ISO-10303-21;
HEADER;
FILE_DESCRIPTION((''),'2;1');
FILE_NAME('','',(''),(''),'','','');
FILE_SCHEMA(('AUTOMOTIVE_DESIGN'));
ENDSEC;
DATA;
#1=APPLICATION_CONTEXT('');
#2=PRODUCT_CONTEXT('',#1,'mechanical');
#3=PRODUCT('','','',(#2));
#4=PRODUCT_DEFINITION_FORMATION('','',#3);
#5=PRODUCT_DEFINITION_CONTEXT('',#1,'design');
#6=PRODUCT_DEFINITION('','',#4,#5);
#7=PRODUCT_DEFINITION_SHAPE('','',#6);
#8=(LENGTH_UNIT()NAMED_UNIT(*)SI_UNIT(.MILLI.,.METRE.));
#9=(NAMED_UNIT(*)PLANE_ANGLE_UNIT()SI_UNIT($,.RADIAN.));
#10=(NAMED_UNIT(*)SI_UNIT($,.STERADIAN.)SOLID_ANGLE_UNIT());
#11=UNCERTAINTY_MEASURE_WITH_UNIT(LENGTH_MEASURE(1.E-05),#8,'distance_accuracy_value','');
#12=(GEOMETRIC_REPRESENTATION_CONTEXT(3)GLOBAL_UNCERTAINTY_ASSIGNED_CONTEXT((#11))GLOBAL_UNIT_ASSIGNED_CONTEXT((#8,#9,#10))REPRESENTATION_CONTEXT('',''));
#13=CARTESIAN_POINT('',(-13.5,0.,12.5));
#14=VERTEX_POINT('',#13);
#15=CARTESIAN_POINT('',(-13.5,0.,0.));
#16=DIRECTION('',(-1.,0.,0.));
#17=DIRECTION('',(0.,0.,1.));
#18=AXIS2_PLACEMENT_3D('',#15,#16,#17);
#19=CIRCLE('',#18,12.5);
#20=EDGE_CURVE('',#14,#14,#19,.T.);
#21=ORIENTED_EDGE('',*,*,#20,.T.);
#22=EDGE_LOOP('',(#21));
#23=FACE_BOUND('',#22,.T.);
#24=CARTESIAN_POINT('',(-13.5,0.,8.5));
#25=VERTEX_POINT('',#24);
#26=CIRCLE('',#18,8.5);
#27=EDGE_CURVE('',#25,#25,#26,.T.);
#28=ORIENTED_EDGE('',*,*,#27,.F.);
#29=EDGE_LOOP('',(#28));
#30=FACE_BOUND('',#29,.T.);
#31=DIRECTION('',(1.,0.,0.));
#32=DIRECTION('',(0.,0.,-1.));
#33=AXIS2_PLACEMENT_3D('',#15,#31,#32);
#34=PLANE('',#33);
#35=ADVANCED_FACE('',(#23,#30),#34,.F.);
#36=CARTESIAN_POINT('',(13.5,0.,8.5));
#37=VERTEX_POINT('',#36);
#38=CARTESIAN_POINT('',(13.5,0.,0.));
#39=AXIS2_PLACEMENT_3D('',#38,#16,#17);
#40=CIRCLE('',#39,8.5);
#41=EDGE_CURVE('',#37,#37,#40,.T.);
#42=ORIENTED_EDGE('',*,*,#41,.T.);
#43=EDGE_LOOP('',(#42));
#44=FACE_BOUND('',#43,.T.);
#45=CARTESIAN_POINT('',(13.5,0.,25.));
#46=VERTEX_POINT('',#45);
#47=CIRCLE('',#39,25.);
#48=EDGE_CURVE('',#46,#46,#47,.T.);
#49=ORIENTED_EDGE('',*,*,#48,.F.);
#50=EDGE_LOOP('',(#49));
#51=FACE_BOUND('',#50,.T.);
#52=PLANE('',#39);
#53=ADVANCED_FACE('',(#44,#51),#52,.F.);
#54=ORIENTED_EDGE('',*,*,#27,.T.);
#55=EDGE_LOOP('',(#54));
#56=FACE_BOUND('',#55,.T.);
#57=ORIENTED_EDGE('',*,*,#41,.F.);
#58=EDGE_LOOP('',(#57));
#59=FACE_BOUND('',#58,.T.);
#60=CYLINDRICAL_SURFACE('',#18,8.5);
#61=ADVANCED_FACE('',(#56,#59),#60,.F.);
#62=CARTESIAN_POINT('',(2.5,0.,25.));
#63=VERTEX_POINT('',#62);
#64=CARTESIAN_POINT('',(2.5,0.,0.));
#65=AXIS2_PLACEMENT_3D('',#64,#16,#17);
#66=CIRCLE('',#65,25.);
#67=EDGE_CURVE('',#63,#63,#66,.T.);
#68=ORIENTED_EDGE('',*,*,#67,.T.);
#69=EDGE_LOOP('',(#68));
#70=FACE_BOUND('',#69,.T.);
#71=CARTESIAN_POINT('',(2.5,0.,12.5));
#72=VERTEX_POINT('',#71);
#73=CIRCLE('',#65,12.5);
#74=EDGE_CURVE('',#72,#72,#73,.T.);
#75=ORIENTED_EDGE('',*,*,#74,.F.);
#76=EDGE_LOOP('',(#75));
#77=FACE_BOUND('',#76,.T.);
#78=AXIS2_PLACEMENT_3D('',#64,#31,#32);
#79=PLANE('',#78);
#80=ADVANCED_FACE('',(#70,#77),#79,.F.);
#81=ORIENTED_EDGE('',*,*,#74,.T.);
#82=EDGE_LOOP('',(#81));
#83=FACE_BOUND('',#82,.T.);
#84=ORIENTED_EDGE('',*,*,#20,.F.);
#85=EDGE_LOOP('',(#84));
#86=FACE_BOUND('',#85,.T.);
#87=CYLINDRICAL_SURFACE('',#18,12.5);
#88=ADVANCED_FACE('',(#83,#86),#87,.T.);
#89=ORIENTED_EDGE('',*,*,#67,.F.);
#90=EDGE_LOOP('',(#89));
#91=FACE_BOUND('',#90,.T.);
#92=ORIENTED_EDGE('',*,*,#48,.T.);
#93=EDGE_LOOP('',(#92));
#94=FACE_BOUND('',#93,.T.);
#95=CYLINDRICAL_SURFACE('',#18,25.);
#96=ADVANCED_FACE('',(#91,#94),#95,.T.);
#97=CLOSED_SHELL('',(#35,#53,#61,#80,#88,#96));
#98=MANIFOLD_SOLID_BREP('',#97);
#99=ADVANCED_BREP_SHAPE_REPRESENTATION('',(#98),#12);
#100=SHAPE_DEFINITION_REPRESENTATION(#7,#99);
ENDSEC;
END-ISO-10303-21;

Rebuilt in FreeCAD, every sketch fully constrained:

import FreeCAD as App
import Part
import Sketcher

V = App.Vector


def add_polygon(sketch, points):
    """Adds a closed chain of lines whose ends are joined by coincident constraints."""
    first, n = sketch.GeometryCount, len(points)
    for a, b in zip(points, points[1:] + points[:1]):
        sketch.addGeometry(Part.LineSegment(App.Vector(*a, 0), App.Vector(*b, 0)), False)
    for i in range(n):
        sketch.addConstraint(Sketcher.Constraint("Coincident", first + i, 2, first + (i + 1) % n, 1))

doc = App.newDocument("Part")
params = doc.addObject("Spreadsheet::Sheet", "Params")
for row, (alias, value) in enumerate([
    ("sketch1_width", "27 mm"),
    ("sketch1_width2", "11 mm"),
    ("sketch1_height", "4 mm"),
    ("sketch1_height2", "16.5 mm"),
    ("revolution_angle", "360 deg"),
], start=1):
    params.set(f"A{row}", alias)
    params.set(f"B{row}", "=" + value)
    params.setAlias(f"B{row}", alias)

body = doc.addObject("PartDesign::Body", "Body")

# Sketch on XY plane
sketch1 = doc.addObject("Sketcher::SketchObject", "Sketch")
body.addObject(sketch1)
sketch1.AttachmentSupport = (doc.XY_Plane, [""])
sketch1.MapMode = "FlatFace"
add_polygon(sketch1, [(-13.5, 8.5), (13.5, 8.5), (13.5, 25), (2.5, 25), (2.5, 12.5), (-13.5, 12.5)])  # lines 0-5
sketch1.addConstraint([
    Sketcher.Constraint("Horizontal", 0),
    Sketcher.Constraint("Vertical", 1),
    Sketcher.Constraint("Horizontal", 2),
    Sketcher.Constraint("Vertical", 3),
    Sketcher.Constraint("Horizontal", 4),
    Sketcher.Constraint("Vertical", 5),
    Sketcher.Constraint("DistanceX", 0, 1, 0, 2, 27.0),
    Sketcher.Constraint("DistanceX", 2, 2, 2, 1, 11.0),
    Sketcher.Constraint("DistanceY", 5, 2, 5, 1, 4.0),
    Sketcher.Constraint("DistanceY", 1, 1, 1, 2, 16.5),
    Sketcher.Constraint("DistanceY", -1, 1, 1, 2, 25.0),
    Sketcher.Constraint("DistanceX", -1, 1, 0, 2, 13.5),
])
sketch1.setExpression("Constraints[12]", "Params.sketch1_width")
sketch1.setExpression("Constraints[13]", "Params.sketch1_width2")
sketch1.setExpression("Constraints[14]", "Params.sketch1_height")
sketch1.setExpression("Constraints[15]", "Params.sketch1_height2")
revolution = doc.addObject("PartDesign::Revolution", "Revolution")
body.addObject(revolution)
revolution.Profile = sketch1
revolution.ReferenceAxis = (sketch1, ["H_Axis"])
revolution.setExpression("Angle", "Params.revolution_angle")

doc.recompute()
